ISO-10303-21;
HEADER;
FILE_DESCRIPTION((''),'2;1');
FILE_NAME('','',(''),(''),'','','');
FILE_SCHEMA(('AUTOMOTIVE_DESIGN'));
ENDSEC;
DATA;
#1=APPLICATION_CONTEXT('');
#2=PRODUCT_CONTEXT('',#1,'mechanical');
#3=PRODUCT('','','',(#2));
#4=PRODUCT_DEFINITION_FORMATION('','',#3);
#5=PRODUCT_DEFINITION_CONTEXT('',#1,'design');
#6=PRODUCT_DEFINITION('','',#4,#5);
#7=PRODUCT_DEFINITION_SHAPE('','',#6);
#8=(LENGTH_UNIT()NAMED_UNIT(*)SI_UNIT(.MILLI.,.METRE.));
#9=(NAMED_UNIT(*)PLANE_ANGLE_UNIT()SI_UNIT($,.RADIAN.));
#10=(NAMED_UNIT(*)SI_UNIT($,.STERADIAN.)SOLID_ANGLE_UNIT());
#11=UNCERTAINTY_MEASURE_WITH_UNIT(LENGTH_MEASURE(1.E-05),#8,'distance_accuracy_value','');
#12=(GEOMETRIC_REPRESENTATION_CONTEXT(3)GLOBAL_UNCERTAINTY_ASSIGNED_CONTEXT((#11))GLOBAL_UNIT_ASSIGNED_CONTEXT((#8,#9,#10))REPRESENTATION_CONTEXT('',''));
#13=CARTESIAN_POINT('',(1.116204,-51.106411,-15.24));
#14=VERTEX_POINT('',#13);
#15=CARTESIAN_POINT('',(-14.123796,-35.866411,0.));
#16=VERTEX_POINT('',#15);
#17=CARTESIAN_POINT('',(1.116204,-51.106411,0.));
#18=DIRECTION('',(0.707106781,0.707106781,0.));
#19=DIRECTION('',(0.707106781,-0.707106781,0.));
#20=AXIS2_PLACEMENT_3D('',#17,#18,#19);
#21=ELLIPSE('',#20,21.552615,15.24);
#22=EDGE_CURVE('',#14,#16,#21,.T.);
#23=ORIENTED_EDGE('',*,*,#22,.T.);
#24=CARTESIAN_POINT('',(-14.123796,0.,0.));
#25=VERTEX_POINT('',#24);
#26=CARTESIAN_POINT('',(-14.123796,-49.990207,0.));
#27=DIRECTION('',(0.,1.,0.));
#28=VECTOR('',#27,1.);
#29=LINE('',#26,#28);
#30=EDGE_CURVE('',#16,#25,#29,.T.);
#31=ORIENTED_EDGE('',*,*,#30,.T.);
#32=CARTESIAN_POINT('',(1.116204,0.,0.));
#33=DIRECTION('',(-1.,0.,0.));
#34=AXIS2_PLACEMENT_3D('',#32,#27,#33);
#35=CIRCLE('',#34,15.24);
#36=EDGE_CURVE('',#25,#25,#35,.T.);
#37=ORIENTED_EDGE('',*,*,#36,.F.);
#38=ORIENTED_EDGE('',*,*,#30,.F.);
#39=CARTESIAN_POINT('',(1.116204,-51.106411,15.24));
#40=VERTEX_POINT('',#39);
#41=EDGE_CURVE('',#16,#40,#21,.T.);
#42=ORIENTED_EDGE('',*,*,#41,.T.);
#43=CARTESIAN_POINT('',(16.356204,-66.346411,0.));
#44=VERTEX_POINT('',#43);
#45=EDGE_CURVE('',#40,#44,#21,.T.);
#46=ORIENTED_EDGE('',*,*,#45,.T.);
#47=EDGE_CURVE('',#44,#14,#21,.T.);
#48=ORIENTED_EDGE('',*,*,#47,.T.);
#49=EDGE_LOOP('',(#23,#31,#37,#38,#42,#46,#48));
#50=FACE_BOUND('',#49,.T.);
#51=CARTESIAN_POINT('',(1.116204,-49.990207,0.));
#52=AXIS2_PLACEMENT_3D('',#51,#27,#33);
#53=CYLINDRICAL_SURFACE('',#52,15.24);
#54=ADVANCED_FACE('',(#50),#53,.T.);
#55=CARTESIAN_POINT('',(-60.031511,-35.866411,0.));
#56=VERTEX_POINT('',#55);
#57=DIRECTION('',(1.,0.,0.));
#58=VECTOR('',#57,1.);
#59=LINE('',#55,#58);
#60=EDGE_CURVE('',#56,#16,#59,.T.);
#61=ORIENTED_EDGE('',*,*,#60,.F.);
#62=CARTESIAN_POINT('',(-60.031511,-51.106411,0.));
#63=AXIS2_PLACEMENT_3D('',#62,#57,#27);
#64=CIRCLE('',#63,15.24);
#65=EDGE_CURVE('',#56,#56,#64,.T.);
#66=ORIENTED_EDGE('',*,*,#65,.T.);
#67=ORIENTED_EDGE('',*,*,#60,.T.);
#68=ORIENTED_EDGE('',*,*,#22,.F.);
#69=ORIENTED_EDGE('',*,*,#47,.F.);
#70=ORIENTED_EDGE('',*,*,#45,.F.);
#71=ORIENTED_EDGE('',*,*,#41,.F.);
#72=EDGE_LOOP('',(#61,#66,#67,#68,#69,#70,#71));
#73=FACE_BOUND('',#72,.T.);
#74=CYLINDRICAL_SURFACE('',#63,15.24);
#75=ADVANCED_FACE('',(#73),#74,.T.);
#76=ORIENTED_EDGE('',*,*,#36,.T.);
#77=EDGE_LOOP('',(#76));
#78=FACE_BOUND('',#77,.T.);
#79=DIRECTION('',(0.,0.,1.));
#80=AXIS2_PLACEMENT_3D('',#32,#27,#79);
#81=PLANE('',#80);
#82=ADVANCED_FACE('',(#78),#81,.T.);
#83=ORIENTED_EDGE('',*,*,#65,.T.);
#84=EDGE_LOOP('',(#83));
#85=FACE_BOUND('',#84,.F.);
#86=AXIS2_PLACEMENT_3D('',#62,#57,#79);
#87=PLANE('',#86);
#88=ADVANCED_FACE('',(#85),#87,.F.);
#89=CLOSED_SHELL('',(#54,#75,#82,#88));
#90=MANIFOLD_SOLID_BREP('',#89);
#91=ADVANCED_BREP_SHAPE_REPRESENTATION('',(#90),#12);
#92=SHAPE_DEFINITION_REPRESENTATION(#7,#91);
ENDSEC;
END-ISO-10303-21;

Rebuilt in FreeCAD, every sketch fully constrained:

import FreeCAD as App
import Part
import Sketcher
Q = App.Units.Quantity

doc = App.newDocument("Part")
body = doc.addObject("PartDesign::Body", "Body")

sketch1 = body.newObject("Sketcher::SketchObject", "Sketch")
sketch1.AttachmentSupport = (doc.getObject("YZ_Plane"), [""])
sketch1.MapMode = "FlatFace"
sketch1.addGeometry(Part.Circle(App.Vector(-51, 0, 0), App.Vector(0, 0, 1), 15), False)
sketch1.addConstraint(Sketcher.Constraint("PointOnObject", 0, 3, -1))
sketch1.addConstraint(Sketcher.Constraint("Diameter", 0, Q("1.2 in")))
sketch1.addConstraint(Sketcher.Constraint("DistanceX", 0, 3, -1, 1, Q("51.106411 mm")))

sketch2 = body.newObject("Sketcher::SketchObject", "Sketch001")
sketch2.AttachmentSupport = (doc.getObject("XY_Plane"), [""])
sketch2.MapMode = "FlatFace"
sketch2.addGeometry(Part.LineSegment(App.Vector(-60, -50, 0), App.Vector(0, -50, 0)), False)
sketch2.addGeometry(Part.LineSegment(App.Vector(0, -50, 0), App.Vector(0, 0, 0)), False)
sketch2.addConstraint(Sketcher.Constraint("Coincident", 0, 2, 1, 1))
sketch2.addConstraint(Sketcher.Constraint("Horizontal", 0))
sketch2.addConstraint(Sketcher.Constraint("Vertical", 1))
sketch2.addConstraint(Sketcher.Constraint("Coincident", 1, 2, -1, 1))
sketch2.addConstraint(Sketcher.Constraint("DistanceX", 0, 1, 0, 2, Q("60.031511 mm")))
sketch2.addConstraint(Sketcher.Constraint("DistanceY", 1, 1, 1, 2, Q("49.990207 mm")))
doc.recompute()

additivepipe = body.newObject("PartDesign::AdditivePipe", "AdditivePipe")
additivepipe.Profile = sketch1
additivepipe.Spine = (sketch2, ["Edge1", "Edge2"])
additivepipe.Transition = "Right corner"

doc.recompute()
